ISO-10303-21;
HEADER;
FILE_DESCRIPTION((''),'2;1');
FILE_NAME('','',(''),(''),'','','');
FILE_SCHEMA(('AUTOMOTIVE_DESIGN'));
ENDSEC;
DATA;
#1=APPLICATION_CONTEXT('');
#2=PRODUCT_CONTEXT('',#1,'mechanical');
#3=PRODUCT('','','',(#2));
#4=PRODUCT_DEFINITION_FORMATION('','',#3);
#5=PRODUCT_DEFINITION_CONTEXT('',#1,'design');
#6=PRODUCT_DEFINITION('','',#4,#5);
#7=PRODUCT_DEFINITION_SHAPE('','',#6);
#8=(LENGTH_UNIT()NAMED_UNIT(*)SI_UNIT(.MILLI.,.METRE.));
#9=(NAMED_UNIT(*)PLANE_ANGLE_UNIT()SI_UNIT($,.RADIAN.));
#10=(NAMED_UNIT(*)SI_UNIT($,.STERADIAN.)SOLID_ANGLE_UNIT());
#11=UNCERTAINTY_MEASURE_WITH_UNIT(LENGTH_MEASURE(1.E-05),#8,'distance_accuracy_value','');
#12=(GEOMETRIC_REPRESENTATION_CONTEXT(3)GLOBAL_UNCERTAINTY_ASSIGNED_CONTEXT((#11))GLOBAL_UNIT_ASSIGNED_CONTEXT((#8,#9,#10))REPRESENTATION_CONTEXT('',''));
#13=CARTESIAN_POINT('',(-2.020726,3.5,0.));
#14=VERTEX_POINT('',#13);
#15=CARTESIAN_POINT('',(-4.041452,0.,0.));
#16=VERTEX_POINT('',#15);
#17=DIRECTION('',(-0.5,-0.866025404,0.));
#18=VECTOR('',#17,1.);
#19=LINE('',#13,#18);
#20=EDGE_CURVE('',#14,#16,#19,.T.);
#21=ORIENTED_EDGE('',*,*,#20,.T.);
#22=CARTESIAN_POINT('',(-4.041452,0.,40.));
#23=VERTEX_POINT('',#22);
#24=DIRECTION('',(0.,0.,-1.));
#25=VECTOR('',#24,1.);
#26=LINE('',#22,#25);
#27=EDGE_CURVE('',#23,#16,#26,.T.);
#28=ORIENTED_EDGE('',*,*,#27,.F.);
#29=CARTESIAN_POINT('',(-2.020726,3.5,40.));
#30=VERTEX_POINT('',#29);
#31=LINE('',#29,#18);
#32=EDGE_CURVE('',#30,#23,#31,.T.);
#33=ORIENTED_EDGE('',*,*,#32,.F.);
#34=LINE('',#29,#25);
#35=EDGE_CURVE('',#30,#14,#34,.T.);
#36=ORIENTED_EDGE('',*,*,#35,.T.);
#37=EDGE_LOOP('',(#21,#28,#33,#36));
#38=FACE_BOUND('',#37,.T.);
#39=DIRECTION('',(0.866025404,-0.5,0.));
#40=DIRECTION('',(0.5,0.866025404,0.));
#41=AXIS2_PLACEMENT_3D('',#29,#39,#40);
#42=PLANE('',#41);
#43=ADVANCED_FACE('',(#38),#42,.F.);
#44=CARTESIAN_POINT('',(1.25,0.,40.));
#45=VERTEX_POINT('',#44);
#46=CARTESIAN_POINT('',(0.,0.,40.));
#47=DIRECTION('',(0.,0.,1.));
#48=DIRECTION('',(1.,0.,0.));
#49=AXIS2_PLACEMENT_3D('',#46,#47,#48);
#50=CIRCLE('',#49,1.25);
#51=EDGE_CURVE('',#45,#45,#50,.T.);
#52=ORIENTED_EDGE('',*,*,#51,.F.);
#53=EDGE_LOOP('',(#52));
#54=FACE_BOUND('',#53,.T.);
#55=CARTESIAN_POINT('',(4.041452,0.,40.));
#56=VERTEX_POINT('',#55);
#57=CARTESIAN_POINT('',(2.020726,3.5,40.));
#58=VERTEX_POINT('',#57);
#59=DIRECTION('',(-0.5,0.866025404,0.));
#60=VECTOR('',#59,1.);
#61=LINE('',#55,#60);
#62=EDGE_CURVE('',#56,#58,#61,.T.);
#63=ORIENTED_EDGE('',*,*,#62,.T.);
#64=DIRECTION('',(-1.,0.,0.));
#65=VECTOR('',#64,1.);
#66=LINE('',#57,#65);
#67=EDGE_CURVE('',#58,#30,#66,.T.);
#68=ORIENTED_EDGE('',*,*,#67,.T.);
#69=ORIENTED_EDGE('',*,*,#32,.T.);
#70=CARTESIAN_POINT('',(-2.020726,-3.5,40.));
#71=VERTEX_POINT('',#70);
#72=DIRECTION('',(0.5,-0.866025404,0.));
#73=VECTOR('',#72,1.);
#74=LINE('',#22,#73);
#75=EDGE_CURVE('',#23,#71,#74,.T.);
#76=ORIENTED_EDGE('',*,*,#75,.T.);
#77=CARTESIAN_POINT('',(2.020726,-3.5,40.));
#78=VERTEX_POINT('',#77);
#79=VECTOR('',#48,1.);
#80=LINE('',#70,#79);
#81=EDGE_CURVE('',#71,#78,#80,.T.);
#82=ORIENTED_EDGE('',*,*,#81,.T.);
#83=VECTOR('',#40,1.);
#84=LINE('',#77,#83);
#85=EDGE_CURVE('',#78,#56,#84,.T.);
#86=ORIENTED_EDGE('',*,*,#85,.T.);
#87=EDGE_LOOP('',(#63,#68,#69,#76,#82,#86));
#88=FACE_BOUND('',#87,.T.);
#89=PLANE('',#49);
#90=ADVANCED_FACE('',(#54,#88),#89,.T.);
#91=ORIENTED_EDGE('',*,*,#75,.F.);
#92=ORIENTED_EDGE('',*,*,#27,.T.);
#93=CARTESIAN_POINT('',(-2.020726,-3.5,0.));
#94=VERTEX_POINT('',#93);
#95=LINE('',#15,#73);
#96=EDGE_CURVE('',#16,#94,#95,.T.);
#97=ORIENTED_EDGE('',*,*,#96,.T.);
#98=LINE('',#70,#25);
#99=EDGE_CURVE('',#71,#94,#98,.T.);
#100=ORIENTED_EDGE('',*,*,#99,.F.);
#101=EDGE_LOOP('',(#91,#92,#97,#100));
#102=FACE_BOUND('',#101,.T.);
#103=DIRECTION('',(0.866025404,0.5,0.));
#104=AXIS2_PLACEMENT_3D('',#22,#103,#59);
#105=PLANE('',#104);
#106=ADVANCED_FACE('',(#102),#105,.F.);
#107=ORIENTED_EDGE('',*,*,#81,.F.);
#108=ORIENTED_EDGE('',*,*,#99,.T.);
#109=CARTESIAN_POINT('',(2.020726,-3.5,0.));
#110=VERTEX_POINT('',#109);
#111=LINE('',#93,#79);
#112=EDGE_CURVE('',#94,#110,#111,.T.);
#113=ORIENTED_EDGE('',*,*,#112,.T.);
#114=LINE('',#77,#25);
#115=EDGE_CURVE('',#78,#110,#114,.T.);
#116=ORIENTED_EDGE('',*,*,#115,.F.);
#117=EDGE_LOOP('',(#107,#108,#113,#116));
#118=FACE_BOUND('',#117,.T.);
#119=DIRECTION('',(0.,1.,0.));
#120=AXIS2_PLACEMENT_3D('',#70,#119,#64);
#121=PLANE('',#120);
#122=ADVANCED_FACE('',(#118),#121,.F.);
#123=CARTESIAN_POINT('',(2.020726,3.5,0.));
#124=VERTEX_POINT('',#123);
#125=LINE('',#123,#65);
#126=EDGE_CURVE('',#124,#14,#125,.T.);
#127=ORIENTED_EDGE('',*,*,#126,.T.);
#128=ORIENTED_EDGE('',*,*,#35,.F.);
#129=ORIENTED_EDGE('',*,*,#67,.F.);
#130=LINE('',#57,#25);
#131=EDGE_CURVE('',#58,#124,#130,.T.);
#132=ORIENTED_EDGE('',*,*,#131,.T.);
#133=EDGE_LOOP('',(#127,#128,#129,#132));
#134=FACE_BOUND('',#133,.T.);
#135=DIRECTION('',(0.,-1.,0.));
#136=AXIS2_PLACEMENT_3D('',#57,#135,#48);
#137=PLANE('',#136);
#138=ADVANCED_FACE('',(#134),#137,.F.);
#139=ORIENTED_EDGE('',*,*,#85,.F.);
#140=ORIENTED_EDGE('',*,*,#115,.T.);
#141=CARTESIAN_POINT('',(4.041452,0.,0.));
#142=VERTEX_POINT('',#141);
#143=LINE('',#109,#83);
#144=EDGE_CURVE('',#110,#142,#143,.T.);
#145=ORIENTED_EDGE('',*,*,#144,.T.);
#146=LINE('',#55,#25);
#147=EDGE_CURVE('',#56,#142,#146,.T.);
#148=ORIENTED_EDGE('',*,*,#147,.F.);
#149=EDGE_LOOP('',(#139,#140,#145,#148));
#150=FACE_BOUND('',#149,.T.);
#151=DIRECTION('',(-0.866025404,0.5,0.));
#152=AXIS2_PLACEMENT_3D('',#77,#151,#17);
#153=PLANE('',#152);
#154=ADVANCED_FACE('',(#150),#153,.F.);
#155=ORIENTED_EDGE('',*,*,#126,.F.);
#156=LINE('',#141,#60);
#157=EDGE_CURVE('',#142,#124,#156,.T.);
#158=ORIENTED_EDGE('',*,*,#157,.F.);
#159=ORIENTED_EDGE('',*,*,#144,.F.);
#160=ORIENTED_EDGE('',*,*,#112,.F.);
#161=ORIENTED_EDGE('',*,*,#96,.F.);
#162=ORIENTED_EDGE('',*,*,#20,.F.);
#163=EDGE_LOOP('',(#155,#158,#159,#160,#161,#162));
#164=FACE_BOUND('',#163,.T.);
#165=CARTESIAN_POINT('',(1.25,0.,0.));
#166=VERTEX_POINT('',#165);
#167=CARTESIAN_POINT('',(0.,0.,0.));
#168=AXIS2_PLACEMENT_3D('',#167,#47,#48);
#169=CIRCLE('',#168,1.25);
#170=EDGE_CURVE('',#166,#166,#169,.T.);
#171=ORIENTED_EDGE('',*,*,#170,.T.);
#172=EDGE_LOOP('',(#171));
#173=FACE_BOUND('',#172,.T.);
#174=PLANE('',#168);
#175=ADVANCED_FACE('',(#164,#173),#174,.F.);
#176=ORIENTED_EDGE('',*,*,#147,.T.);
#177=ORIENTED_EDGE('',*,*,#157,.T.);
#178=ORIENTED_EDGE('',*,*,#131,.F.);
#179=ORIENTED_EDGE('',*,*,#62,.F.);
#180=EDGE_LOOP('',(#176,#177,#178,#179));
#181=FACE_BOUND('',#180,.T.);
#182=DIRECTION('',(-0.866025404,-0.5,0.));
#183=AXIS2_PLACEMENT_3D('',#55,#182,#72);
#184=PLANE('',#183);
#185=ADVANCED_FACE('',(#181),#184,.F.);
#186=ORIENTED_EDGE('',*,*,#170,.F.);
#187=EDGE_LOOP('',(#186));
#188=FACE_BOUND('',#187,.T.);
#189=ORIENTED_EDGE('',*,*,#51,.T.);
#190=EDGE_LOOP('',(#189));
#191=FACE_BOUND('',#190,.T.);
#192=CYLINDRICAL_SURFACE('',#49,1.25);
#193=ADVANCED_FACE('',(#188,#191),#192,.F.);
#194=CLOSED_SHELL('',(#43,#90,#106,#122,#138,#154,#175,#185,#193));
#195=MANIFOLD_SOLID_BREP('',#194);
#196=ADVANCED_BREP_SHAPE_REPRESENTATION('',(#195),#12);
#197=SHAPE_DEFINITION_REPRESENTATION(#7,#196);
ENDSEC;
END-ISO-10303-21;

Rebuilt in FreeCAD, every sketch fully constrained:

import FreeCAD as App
import Part
import Sketcher
Q = App.Units.Quantity


def add_polygon(sketch, points):
    """Adds a closed chain of lines whose ends are joined by coincident constraints."""
    first, n = sketch.GeometryCount, len(points)
    for a, b in zip(points, points[1:] + points[:1]):
        sketch.addGeometry(Part.LineSegment(App.Vector(*a, 0), App.Vector(*b, 0)), False)
    for i in range(n):
        sketch.addConstraint(Sketcher.Constraint("Coincident", first + i, 2, first + (i + 1) % n, 1))

doc = App.newDocument("Part")
body = doc.addObject("PartDesign::Body", "Body")

# Sketch on XY plane
sketch1 = body.newObject("Sketcher::SketchObject", "Sketch")
sketch1.AttachmentSupport = (doc.getObject("XY_Plane"), [""])
sketch1.MapMode = "FlatFace"
add_polygon(sketch1, [(-2, 3.5), (-4, 0), (-2, -3.5), (2, -3.5), (4, 0), (2, 3.5)])  # lines 0-5
sketch1.addConstraint([
    Sketcher.Constraint("Horizontal", 2),
    Sketcher.Constraint("Horizontal", 5),
    Sketcher.Constraint("Symmetric", 0, 2, 3, 2, -1, 1),
    Sketcher.Constraint("Symmetric", 1, 2, 4, 2, -1, 1),
    Sketcher.Constraint("PointOnObject", 0, 2, -1),
    Sketcher.Constraint("Parallel", 0, 3),
    Sketcher.Constraint("Vertical", 2, 2, 4, 2),
    Sketcher.Constraint("Angle", 0, Q("-120 deg")),
    Sketcher.Constraint("DistanceY", 2, 2, 4, 2, Q("7 mm")),
    Sketcher.Constraint("DistanceX", 2, 1, 2, 2, Q("4.041452 mm")),
])
pad1 = body.newObject("PartDesign::Pad", "Pad")
pad1.Profile = sketch1
pad1.Length = 40

# Sketch on XY plane
sketch2 = body.newObject("Sketcher::SketchObject", "Sketch001")
sketch2.AttachmentSupport = (doc.getObject("XY_Plane"), [""])
sketch2.MapMode = "FlatFace"
sketch2.AttachmentOffset = App.Placement(App.Vector(0, 0, 40), App.Rotation())
sketch2.addGeometry(Part.Circle(App.Vector(0, 0, 0), App.Vector(0, 0, 1), 1.2), False)
sketch2.addConstraint([
    Sketcher.Constraint("Coincident", 0, 3, -1, 1),
    Sketcher.Constraint("Diameter", 0, Q("2.5 mm")),
])
doc.recompute()
hole = body.newObject("PartDesign::Hole", "Hole")
hole.Profile = sketch2
hole.ThreadType = "None"
hole.Diameter = 2.5
hole.DepthType = "ThroughAll"

doc.recompute()
